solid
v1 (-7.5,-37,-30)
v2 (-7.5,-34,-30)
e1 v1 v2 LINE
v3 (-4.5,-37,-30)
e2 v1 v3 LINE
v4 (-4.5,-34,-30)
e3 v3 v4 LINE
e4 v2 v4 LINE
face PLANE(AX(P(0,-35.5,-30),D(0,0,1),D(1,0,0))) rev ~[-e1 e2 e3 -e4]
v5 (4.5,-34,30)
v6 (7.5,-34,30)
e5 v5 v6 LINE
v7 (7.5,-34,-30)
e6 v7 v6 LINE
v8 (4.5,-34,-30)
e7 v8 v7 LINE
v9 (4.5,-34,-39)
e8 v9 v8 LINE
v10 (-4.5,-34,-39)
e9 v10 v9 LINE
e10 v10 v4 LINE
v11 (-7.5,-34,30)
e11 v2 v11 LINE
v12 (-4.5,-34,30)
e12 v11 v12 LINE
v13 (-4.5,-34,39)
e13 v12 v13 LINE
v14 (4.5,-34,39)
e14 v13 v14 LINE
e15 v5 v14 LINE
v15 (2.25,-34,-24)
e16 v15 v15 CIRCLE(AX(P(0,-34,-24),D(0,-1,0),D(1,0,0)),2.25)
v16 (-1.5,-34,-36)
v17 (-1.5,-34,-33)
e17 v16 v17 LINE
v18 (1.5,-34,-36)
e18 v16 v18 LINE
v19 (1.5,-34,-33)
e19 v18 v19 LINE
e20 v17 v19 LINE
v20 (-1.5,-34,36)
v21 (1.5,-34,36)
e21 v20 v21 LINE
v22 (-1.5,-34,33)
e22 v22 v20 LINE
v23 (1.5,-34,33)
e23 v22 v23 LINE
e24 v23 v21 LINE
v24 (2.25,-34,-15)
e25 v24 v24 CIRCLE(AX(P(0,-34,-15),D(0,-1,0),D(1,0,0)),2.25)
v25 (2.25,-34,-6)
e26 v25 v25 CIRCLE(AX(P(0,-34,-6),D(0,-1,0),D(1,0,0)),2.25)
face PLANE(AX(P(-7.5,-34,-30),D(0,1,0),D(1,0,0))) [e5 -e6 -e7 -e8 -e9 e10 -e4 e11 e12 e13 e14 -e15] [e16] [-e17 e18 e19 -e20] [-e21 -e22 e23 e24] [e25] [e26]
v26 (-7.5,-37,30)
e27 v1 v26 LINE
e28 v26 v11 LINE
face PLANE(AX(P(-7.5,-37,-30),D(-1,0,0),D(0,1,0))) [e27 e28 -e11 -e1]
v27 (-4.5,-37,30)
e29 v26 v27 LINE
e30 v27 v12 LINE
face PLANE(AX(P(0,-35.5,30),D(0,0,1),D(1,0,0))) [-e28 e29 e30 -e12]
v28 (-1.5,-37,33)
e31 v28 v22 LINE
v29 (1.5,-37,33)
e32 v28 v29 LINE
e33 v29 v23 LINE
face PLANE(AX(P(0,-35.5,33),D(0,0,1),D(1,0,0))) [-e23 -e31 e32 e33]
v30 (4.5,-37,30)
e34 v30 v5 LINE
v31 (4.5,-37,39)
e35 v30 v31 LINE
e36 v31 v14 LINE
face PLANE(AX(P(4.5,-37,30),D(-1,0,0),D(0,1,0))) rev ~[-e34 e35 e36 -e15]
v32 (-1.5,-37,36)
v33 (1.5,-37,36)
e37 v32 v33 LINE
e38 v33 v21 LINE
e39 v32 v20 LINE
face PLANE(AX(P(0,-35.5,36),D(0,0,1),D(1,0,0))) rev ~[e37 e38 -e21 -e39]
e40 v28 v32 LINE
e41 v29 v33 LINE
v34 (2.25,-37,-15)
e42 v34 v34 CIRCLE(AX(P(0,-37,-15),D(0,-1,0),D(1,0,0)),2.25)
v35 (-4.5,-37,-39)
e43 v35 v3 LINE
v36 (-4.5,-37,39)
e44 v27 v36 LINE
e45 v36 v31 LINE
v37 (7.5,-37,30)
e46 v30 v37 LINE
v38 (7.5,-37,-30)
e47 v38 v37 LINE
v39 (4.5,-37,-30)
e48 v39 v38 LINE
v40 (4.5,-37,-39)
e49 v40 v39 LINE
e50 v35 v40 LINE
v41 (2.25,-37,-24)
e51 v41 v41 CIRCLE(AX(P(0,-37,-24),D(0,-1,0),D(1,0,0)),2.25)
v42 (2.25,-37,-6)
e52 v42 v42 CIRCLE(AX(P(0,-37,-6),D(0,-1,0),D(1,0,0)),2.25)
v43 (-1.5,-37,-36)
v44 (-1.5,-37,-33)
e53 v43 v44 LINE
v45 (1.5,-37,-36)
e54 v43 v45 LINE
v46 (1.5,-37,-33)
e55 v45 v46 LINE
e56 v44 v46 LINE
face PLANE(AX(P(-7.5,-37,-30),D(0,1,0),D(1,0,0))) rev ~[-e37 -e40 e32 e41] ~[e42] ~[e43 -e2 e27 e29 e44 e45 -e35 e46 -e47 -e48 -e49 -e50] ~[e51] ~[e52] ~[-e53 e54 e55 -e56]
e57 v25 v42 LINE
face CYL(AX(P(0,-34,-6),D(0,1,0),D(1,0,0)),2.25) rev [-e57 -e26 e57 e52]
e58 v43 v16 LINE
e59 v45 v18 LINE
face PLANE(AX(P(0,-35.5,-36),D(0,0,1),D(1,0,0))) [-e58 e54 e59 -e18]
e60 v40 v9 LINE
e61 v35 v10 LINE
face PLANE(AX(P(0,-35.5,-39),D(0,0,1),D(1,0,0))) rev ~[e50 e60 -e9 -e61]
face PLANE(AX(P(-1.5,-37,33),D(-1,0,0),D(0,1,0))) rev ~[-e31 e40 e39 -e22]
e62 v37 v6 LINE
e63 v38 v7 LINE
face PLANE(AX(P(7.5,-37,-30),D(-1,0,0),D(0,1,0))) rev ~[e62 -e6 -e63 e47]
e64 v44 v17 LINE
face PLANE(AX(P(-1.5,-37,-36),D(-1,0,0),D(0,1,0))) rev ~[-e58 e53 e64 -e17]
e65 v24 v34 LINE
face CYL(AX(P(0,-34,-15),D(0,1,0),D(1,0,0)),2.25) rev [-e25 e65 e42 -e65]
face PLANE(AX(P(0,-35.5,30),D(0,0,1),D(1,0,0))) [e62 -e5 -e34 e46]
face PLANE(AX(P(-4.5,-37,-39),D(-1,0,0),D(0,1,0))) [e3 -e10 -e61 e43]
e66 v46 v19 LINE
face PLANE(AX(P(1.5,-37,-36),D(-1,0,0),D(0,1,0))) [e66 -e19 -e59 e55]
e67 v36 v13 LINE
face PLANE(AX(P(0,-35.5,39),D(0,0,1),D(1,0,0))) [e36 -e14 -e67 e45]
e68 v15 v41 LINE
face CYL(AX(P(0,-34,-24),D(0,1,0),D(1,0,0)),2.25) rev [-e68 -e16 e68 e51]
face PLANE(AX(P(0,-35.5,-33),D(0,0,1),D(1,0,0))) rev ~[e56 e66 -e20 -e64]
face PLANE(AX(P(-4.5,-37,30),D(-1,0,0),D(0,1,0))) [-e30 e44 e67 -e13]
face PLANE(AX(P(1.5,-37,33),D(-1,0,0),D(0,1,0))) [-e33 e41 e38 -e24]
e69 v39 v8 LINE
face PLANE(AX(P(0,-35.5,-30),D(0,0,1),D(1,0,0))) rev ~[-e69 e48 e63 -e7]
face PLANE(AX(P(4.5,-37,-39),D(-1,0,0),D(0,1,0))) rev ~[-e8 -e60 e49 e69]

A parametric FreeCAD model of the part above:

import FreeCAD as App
import Part
import Sketcher
from FreeCAD import Vector


def add_polygon(sketch, points):
    """Adds a closed chain of lines whose ends are joined by coincident constraints."""
    first, n = sketch.GeometryCount, len(points)
    for a, b in zip(points, points[1:] + points[:1]):
        sketch.addGeometry(Part.LineSegment(App.Vector(*a, 0), App.Vector(*b, 0)), False)
    for i in range(n):
        sketch.addConstraint(Sketcher.Constraint("Coincident", first + i, 2, first + (i + 1) % n, 1))

doc = App.newDocument("Part")
body = doc.addObject("PartDesign::Body", "Body")

sketch1 = doc.addObject("Sketcher::SketchObject", "Sketch")
body.addObject(sketch1)
sketch1.AttachmentSupport = (doc.XY_Plane, [""])
sketch1.MapMode = "FlatFace"
sketch1.addGeometry(Part.Circle(Vector(0, 0, 0), Vector(0, 0, 1), 2.2), False)
sketch1.addConstraint([
    Sketcher.Constraint("Coincident", 0, 3, -1, 1),
    Sketcher.Constraint("Diameter", 0, 4.5),
])
pad1 = doc.addObject("PartDesign::Pad", "Pad")
body.addObject(pad1)
pad1.Profile = sketch1
pad1.Length = 3
body2 = doc.addObject("PartDesign::Body", "Body001")
doc.recompute()

body.Placement = App.Placement(Vector(0, 0, 0), App.Rotation(Vector(1, 0, 0), 90))
boolean = doc.addObject("PartDesign::Boolean", "Boolean")
body2.addObject(boolean)
boolean.Type = "Fuse"
boolean.addObjects([body])
body3 = doc.addObject("PartDesign::Body", "Body002")
doc.recompute()

body2.Placement = App.Placement(Vector(0, -63, -3), App.Rotation(Vector(0, 0, 1), 0))
boolean2 = doc.addObject("PartDesign::Boolean", "Boolean001")
body3.addObject(boolean2)
boolean2.Type = "Fuse"
boolean2.addObjects([body2])
body4 = doc.addObject("PartDesign::Body", "Body003")

sketch2 = doc.addObject("Sketcher::SketchObject", "Sketch001")
body4.addObject(sketch2)
sketch2.AttachmentSupport = (doc.getObject("XY_Plane003"), [""])
sketch2.MapMode = "FlatFace"
sketch2.addGeometry(Part.Circle(Vector(0, 0, 0), Vector(0, 0, 1), 2.2), False)
sketch2.addConstraint([
    Sketcher.Constraint("Coincident", 0, 3, -1, 1),
    Sketcher.Constraint("Diameter", 0, 4.5),
])
pad2 = doc.addObject("PartDesign::Pad", "Pad001")
body4.addObject(pad2)
pad2.Profile = sketch2
pad2.Length = 3
body5 = doc.addObject("PartDesign::Body", "Body004")
doc.recompute()

body4.Placement = App.Placement(Vector(0, 0, 0), App.Rotation(Vector(1, 0, 0), 90))
boolean3 = doc.addObject("PartDesign::Boolean", "Boolean002")
body5.addObject(boolean3)
boolean3.Type = "Fuse"
boolean3.addObjects([body4])
body6 = doc.addObject("PartDesign::Body", "Body005")
doc.recompute()

body5.Placement = App.Placement(Vector(0, -63, -21), App.Rotation(Vector(0, 0, 1), 0))
boolean4 = doc.addObject("PartDesign::Boolean", "Boolean003")
body6.addObject(boolean4)
boolean4.Type = "Fuse"
boolean4.addObjects([body5])
body7 = doc.addObject("PartDesign::Body", "Body006")

sketch3 = doc.addObject("Sketcher::SketchObject", "Sketch002")
body7.addObject(sketch3)
sketch3.AttachmentSupport = (doc.getObject("XY_Plane006"), [""])
sketch3.MapMode = "FlatFace"
sketch3.addGeometry(Part.Circle(Vector(0, 0, 0), Vector(0, 0, 1), 2.2), False)
sketch3.addConstraint([
    Sketcher.Constraint("Coincident", 0, 3, -1, 1),
    Sketcher.Constraint("Diameter", 0, 4.5),
])
pad3 = doc.addObject("PartDesign::Pad", "Pad002")
body7.addObject(pad3)
pad3.Profile = sketch3
pad3.Length = 3
body8 = doc.addObject("PartDesign::Body", "Body007")
doc.recompute()

body7.Placement = App.Placement(Vector(0, 0, 0), App.Rotation(Vector(1, 0, 0), 90))
boolean5 = doc.addObject("PartDesign::Boolean", "Boolean004")
body8.addObject(boolean5)
boolean5.Type = "Fuse"
boolean5.addObjects([body7])
body9 = doc.addObject("PartDesign::Body", "Body008")
doc.recompute()

body8.Placement = App.Placement(Vector(0, -63, -12), App.Rotation(Vector(0, 0, 1), 0))
boolean6 = doc.addObject("PartDesign::Boolean", "Boolean005")
body9.addObject(boolean6)
boolean6.Type = "Fuse"
boolean6.addObjects([body8])
body10 = doc.addObject("PartDesign::Body", "Body009")

sketch4 = doc.addObject("Sketcher::SketchObject", "Sketch003")
body10.addObject(sketch4)
sketch4.AttachmentSupport = (doc.getObject("XY_Plane009"), [""])
sketch4.MapMode = "FlatFace"
sketch4.AttachmentOffset = App.Placement(Vector(0, 0, -27), App.Rotation())
add_polygon(sketch4, [(-7.5, -63), (-7.5, -66), (7.5, -66), (7.5, -63)])
sketch4.addConstraint([
    Sketcher.Constraint("Vertical", 0),
    Sketcher.Constraint("Horizontal", 1),
    Sketcher.Constraint("Vertical", 2),
    Sketcher.Constraint("Horizontal", 3),
    Sketcher.Constraint("DistanceX", 1, 1, 1, 2, 15.0),
    Sketcher.Constraint("DistanceY", 0, 2, 0, 1, 3.0),
    Sketcher.Constraint("DistanceY", 0, 2, -1, 1, 66.0),
    Sketcher.Constraint("DistanceX", 0, 2, -1, 1, 7.5),
])
pad4 = doc.addObject("PartDesign::Pad", "Pad003")
body10.addObject(pad4)
pad4.Profile = sketch4
pad4.Length = 60
body11 = doc.addObject("PartDesign::Body", "Body010")

sketch5 = doc.addObject("Sketcher::SketchObject", "Sketch004")
body11.addObject(sketch5)
sketch5.AttachmentSupport = (doc.getObject("XY_Plane010"), [""])
sketch5.MapMode = "FlatFace"
sketch5.AttachmentOffset = App.Placement(Vector(0, 0, 6), App.Rotation())
add_polygon(sketch5, [(-1.5, -63), (-1.5, -66), (1.5, -66), (1.5, -63)])
sketch5.addConstraint([
    Sketcher.Constraint("Vertical", 0),
    Sketcher.Constraint("Horizontal", 1),
    Sketcher.Constraint("Vertical", 2),
    Sketcher.Constraint("Horizontal", 3),
    Sketcher.Constraint("Equal", 3, 0),
    Sketcher.Constraint("DistanceX", 1, 1, 1, 2, 3.0),
    Sketcher.Constraint("DistanceY", 0, 2, -1, 1, 66.0),
    Sketcher.Constraint("DistanceX", 0, 2, -1, 1, 1.5),
])
pad5 = doc.addObject("PartDesign::Pad", "Pad004")
body11.addObject(pad5)
pad5.Profile = sketch5
pad5.Length = 3
body12 = doc.addObject("PartDesign::Body", "Body011")

sketch6 = doc.addObject("Sketcher::SketchObject", "Sketch005")
body12.addObject(sketch6)
sketch6.AttachmentSupport = (doc.getObject("XY_Plane011"), [""])
sketch6.MapMode = "FlatFace"
sketch6.AttachmentOffset = App.Placement(Vector(0, 0, 3), App.Rotation())
add_polygon(sketch6, [(-4.5, -63), (-4.5, -66), (4.5, -66), (4.5, -63)])
sketch6.addConstraint([
    Sketcher.Constraint("Vertical", 0),
    Sketcher.Constraint("Horizontal", 1),
    Sketcher.Constraint("Vertical", 2),
    Sketcher.Constraint("Horizontal", 3),
    Sketcher.Constraint("DistanceX", 1, 1, 1, 2, 9.0),
    Sketcher.Constraint("DistanceY", 0, 2, 0, 1, 3.0),
    Sketcher.Constraint("DistanceY", 0, 2, -1, 1, 66.0),
    Sketcher.Constraint("DistanceX", 0, 2, -1, 1, 4.5),
])
pad6 = doc.addObject("PartDesign::Pad", "Pad005")
body12.addObject(pad6)
pad6.Profile = sketch6
pad6.Length = 9
doc.recompute()

boolean7 = doc.addObject("PartDesign::Boolean", "Boolean006")
body12.addObject(boolean7)
boolean7.Type = "Cut"
boolean7.addObjects([body11])
body13 = doc.addObject("PartDesign::Body", "Body012")
doc.recompute()

body12.Placement = App.Placement(Vector(0, 0, 30), App.Rotation(Vector(0, 0, 1), 0))
boolean8 = doc.addObject("PartDesign::Boolean", "Boolean007")
body13.addObject(boolean8)
boolean8.Type = "Fuse"
boolean8.addObjects([body12])
body14 = doc.addObject("PartDesign::Body", "Body013")

sketch7 = doc.addObject("Sketcher::SketchObject", "Sketch006")
body14.addObject(sketch7)
sketch7.AttachmentSupport = (doc.getObject("XY_Plane013"), [""])
sketch7.MapMode = "FlatFace"
sketch7.AttachmentOffset = App.Placement(Vector(0, 0, 6), App.Rotation())
add_polygon(sketch7, [(-1.5, -63), (-1.5, -66), (1.5, -66), (1.5, -63)])
sketch7.addConstraint([
    Sketcher.Constraint("Vertical", 0),
    Sketcher.Constraint("Horizontal", 1),
    Sketcher.Constraint("Vertical", 2),
    Sketcher.Constraint("Horizontal", 3),
    Sketcher.Constraint("Equal", 3, 0),
    Sketcher.Constraint("DistanceX", 1, 1, 1, 2, 3.0),
    Sketcher.Constraint("DistanceY", 0, 2, -1, 1, 66.0),
    Sketcher.Constraint("DistanceX", 0, 2, -1, 1, 1.5),
])
pad7 = doc.addObject("PartDesign::Pad", "Pad006")
body14.addObject(pad7)
pad7.Profile = sketch7
pad7.Length = 3
body15 = doc.addObject("PartDesign::Body", "Body014")

sketch8 = doc.addObject("Sketcher::SketchObject", "Sketch007")
body15.addObject(sketch8)
sketch8.AttachmentSupport = (doc.getObject("XY_Plane014"), [""])
sketch8.MapMode = "FlatFace"
sketch8.AttachmentOffset = App.Placement(Vector(0, 0, 3), App.Rotation())
add_polygon(sketch8, [(-4.5, -63), (-4.5, -66), (4.5, -66), (4.5, -63)])
sketch8.addConstraint([
    Sketcher.Constraint("Vertical", 0),
    Sketcher.Constraint("Horizontal", 1),
    Sketcher.Constraint("Vertical", 2),
    Sketcher.Constraint("Horizontal", 3),
    Sketcher.Constraint("DistanceX", 1, 1, 1, 2, 9.0),
    Sketcher.Constraint("DistanceY", 0, 2, 0, 1, 3.0),
    Sketcher.Constraint("DistanceY", 0, 2, -1, 1, 66.0),
    Sketcher.Constraint("DistanceX", 0, 2, -1, 1, 4.5),
])
pad8 = doc.addObject("PartDesign::Pad", "Pad007")
body15.addObject(pad8)
pad8.Profile = sketch8
pad8.Length = 9
doc.recompute()

boolean9 = doc.addObject("PartDesign::Boolean", "Boolean008")
body15.addObject(boolean9)
boolean9.Type = "Cut"
boolean9.addObjects([body14])
body16 = doc.addObject("PartDesign::Body", "Body015")
doc.recompute()

body15.Placement = App.Placement(Vector(0, 0, -39), App.Rotation(Vector(0, 0, 1), 0))
boolean10 = doc.addObject("PartDesign::Boolean", "Boolean009")
body16.addObject(boolean10)
boolean10.Type = "Fuse"
boolean10.addObjects([body15])
doc.recompute()

boolean11 = doc.addObject("PartDesign::Boolean", "Boolean010")
body16.addObject(boolean11)
boolean11.Type = "Fuse"
boolean11.addObjects([body10])
doc.recompute()

boolean12 = doc.addObject("PartDesign::Boolean", "Boolean011")
body16.addObject(boolean12)
boolean12.Type = "Fuse"
boolean12.addObjects([body13])
doc.recompute()

boolean13 = doc.addObject("PartDesign::Boolean", "Boolean012")
body16.addObject(boolean13)
boolean13.Type = "Cut"
boolean13.addObjects([body9])
doc.recompute()

boolean14 = doc.addObject("PartDesign::Boolean", "Boolean013")
body16.addObject(boolean14)
boolean14.Type = "Cut"
boolean14.addObjects([body6])
doc.recompute()

boolean15 = doc.addObject("PartDesign::Boolean", "Boolean014")
body16.addObject(boolean15)
boolean15.Type = "Cut"
boolean15.addObjects([body3])
body17 = doc.addObject("PartDesign::Body", "Body016")
doc.recompute()

body16.Placement = App.Placement(Vector(0, 29, -3), App.Rotation(Vector(0, 0, 1), 0))
boolean16 = doc.addObject("PartDesign::Boolean", "Boolean015")
body17.addObject(boolean16)
boolean16.Type = "Fuse"
boolean16.addObjects([body16])

doc.recompute()
